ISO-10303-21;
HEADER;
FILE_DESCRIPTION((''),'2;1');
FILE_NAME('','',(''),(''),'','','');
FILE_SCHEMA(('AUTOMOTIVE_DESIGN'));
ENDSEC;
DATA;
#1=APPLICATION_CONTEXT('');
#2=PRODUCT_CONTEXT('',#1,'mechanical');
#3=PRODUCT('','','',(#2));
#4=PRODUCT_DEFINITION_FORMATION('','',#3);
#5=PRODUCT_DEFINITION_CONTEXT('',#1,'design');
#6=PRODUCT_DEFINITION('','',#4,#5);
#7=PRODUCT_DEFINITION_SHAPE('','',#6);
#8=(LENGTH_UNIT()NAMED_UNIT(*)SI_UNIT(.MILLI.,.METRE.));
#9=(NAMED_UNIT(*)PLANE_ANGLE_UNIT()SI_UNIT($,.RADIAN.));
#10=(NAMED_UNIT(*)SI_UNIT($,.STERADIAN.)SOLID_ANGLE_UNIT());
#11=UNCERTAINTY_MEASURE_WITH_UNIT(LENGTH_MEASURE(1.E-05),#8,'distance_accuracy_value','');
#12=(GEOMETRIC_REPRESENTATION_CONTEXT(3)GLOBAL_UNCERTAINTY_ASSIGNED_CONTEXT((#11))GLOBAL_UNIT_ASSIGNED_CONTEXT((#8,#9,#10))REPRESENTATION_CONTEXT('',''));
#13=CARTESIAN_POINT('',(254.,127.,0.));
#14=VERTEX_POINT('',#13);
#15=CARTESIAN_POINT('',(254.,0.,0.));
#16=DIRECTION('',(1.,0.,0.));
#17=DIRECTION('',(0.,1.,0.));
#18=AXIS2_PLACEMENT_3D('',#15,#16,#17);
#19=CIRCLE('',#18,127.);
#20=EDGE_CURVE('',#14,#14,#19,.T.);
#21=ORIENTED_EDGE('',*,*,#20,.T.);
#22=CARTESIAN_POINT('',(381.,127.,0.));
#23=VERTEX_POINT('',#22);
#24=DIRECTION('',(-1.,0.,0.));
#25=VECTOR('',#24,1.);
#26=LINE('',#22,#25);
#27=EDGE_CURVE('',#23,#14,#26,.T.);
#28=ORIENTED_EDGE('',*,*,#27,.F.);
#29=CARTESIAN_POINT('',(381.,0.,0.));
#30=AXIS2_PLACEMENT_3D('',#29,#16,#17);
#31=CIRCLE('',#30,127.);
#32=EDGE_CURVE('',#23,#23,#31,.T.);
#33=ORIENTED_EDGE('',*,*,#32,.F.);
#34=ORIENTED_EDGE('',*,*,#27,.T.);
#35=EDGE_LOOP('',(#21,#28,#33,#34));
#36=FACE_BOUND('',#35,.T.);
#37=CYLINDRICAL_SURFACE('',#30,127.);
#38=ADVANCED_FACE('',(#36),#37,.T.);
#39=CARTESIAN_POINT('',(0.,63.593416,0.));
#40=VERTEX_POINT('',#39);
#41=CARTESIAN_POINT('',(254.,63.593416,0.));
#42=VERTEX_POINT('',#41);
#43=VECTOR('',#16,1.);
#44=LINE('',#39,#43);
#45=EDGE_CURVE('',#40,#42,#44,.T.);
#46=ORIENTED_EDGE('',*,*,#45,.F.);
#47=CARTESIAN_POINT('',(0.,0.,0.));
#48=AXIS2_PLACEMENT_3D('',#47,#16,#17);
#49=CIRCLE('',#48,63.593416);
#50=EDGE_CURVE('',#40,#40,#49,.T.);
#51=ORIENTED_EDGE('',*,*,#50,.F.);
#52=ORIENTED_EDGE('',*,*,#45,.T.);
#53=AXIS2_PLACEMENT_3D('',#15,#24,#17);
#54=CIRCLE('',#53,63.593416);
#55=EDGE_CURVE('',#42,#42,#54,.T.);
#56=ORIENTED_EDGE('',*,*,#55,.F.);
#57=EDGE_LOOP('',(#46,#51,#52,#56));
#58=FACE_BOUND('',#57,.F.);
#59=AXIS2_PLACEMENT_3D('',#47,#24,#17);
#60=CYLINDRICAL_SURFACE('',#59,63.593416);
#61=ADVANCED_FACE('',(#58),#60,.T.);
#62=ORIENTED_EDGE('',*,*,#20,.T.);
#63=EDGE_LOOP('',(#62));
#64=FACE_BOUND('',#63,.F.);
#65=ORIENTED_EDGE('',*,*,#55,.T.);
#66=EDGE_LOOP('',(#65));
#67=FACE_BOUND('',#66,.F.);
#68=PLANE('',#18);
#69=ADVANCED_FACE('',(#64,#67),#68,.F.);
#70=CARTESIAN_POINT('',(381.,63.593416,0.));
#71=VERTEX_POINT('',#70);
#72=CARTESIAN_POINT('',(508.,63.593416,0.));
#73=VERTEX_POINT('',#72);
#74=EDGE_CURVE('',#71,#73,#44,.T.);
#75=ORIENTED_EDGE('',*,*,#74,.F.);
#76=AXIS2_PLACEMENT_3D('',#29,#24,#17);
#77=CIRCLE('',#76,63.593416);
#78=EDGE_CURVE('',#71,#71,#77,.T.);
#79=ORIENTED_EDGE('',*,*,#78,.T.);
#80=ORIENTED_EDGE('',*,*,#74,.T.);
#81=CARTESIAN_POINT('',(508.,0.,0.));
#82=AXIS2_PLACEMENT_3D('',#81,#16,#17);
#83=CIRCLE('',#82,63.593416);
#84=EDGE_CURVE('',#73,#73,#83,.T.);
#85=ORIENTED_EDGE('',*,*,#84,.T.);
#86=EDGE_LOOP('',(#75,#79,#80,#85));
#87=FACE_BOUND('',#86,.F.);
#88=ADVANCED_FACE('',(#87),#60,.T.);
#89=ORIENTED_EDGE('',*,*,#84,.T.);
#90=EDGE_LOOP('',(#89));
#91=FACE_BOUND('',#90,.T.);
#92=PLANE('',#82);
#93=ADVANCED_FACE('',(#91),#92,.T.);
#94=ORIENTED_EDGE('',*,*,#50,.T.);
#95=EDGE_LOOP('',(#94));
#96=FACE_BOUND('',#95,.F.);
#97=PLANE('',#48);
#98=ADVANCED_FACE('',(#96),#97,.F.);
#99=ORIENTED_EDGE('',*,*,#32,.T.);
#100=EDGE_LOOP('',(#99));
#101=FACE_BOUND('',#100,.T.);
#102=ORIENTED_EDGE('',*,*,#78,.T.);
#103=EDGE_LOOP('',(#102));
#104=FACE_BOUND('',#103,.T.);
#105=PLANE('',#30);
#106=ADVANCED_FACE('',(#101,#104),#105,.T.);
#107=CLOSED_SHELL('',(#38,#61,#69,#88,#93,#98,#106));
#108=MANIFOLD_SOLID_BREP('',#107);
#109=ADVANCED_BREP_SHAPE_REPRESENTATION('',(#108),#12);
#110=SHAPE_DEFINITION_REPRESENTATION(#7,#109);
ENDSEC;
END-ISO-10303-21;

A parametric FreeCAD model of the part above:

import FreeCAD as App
import Part
import Sketcher

V = App.Vector
Q = App.Units.Quantity

doc = App.newDocument("Part")
body = doc.addObject("PartDesign::Body", "Body")

sketch1 = body.newObject("Sketcher::SketchObject", "Sketch")
sketch1.AttachmentSupport = (doc.getObject("YZ_Plane"), [""])
sketch1.MapMode = "FlatFace"
sketch1.addGeometry(Part.Circle(V(0, 0, 0), V(0, 0, 1), 64), False)
sketch1.addConstraint(Sketcher.Constraint("Coincident", 0, 3, -1, 1))
sketch1.addConstraint(Sketcher.Constraint("Diameter", 0, Q("127.186832 mm")))
pad1 = body.newObject("PartDesign::Pad", "Pad")
pad1.Profile = sketch1
pad1.Length = Q("20 in")

sketch2 = body.newObject("Sketcher::SketchObject", "Sketch001")
sketch2.AttachmentSupport = (doc.getObject("YZ_Plane"), [""])
sketch2.MapMode = "FlatFace"
sketch2.AttachmentOffset = App.Placement(V(0, 0, 15 * 25.4), App.Rotation())
sketch2.addGeometry(Part.Circle(V(0, 0, 0), V(0, 0, 1), 127), False)
sketch2.addConstraint(Sketcher.Constraint("Coincident", 0, 3, -1, 1))
sketch2.addConstraint(Sketcher.Constraint("Diameter", 0, Q("10 in")))
pad2 = body.newObject("PartDesign::Pad", "Pad001")
pad2.Profile = sketch2
pad2.Length = Q("5 in")
pad2.Reversed = True

doc.recompute()
